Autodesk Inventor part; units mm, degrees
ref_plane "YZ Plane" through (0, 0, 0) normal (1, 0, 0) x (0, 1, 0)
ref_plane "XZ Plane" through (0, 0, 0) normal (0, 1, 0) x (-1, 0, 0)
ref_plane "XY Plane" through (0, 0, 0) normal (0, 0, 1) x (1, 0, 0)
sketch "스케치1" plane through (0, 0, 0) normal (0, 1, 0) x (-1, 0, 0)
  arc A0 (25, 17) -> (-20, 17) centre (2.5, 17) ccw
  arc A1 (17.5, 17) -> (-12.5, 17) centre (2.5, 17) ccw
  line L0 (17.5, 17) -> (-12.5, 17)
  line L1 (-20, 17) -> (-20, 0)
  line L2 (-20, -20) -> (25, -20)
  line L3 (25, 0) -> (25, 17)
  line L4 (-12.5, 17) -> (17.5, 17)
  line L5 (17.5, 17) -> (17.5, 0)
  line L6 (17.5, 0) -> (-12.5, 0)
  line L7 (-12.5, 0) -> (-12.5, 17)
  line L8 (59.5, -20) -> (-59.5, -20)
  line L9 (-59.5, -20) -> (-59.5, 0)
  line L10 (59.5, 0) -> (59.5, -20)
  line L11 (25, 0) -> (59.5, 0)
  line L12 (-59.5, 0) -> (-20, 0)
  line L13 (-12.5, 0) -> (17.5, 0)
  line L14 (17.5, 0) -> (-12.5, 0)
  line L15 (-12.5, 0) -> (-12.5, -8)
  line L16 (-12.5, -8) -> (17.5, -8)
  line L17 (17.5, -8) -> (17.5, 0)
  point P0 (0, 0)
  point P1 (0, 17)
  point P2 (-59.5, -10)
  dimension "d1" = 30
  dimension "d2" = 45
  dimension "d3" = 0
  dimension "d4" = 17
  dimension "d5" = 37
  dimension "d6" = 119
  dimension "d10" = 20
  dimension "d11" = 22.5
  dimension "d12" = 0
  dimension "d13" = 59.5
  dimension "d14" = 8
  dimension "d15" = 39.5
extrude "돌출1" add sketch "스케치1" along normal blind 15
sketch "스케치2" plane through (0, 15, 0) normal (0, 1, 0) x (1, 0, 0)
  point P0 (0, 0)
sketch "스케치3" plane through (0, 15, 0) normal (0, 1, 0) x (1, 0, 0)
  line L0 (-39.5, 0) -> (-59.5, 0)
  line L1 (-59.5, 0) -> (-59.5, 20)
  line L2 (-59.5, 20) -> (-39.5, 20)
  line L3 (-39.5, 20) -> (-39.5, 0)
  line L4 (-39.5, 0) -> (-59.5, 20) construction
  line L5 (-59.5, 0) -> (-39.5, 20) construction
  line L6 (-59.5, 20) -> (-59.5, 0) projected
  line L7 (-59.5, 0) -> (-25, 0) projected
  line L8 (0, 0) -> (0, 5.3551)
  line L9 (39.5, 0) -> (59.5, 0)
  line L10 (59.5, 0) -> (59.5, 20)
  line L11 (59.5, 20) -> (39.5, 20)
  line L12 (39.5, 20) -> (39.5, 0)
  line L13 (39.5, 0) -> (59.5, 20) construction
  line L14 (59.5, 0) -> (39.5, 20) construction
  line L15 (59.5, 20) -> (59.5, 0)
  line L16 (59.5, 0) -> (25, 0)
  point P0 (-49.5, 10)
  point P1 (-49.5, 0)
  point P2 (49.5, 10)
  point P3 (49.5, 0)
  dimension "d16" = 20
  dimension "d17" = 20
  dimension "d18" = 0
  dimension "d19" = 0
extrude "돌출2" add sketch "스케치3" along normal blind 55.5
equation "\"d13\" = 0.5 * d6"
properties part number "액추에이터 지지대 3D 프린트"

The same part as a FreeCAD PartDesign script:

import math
import FreeCAD as App
import Part
import Sketcher
from FreeCAD import Vector


def add_polygon(sketch, points):
    """Adds a closed chain of lines whose ends are joined by coincident constraints."""
    first, n = sketch.GeometryCount, len(points)
    for a, b in zip(points, points[1:] + points[:1]):
        sketch.addGeometry(Part.LineSegment(App.Vector(*a, 0), App.Vector(*b, 0)), False)
    for i in range(n):
        sketch.addConstraint(Sketcher.Constraint("Coincident", first + i, 2, first + (i + 1) % n, 1))

doc = App.newDocument("Part")
body = doc.addObject("PartDesign::Body", "Body")

# Sketch on XZ plane
sketch1 = doc.addObject("Sketcher::SketchObject", "Sketch")
body.addObject(sketch1)
sketch1.AttachmentSupport = (doc.XZ_Plane, [""])
sketch1.MapMode = "FlatFace"
sketch1.addGeometry([
    Part.LineSegment(Vector(-25, 0, 0), Vector(-25, 17, 0)),  # 0
    Part.ArcOfCircle(Part.Circle(Vector(-2.5, 17, 0), Vector(0, 0, 1), 22.5), math.radians(0), math.radians(180)),  # 1
    Part.LineSegment(Vector(20, 17, 0), Vector(20, 0, 0)),  # 2
    Part.LineSegment(Vector(20, 0, 0), Vector(59.5, 0, 0)),  # 3
    Part.LineSegment(Vector(59.5, 0, 0), Vector(59.5, -20, 0)),  # 4
    Part.LineSegment(Vector(59.5, -20, 0), Vector(-59.5, -20, 0)),  # 5
    Part.LineSegment(Vector(-59.5, -20, 0), Vector(-59.5, 0, 0)),  # 6
    Part.LineSegment(Vector(-59.5, 0, 0), Vector(-25, 0, 0)),  # 7
    Part.ArcOfCircle(Part.Circle(Vector(-2.5, 17, 0), Vector(0, 0, 1), 15), math.radians(0), math.radians(180)),  # 8
    Part.LineSegment(Vector(-17.5, 17, 0), Vector(-17.5, -8, 0)),  # 9
    Part.LineSegment(Vector(-17.5, -8, 0), Vector(12.5, -8, 0)),  # 10
    Part.LineSegment(Vector(12.5, -8, 0), Vector(12.5, 17, 0)),  # 11
], False)
sketch1.addConstraint([
    Sketcher.Constraint("Tangent", 0, 2, 1, 2),
    Sketcher.Constraint("Tangent", 1, 1, 2, 1),
    Sketcher.Constraint("Coincident", 2, 2, 3, 1),
    Sketcher.Constraint("Coincident", 3, 2, 4, 1),
    Sketcher.Constraint("Coincident", 4, 2, 5, 1),
    Sketcher.Constraint("Coincident", 5, 2, 6, 1),
    Sketcher.Constraint("Coincident", 6, 2, 7, 1),
    Sketcher.Constraint("Coincident", 7, 2, 0, 1),
    Sketcher.Constraint("Tangent", 8, 2, 9, 1),
    Sketcher.Constraint("Coincident", 9, 2, 10, 1),
    Sketcher.Constraint("Coincident", 10, 2, 11, 1),
    Sketcher.Constraint("Tangent", 11, 2, 8, 1),
    Sketcher.Constraint("Vertical", 0),
    Sketcher.Constraint("Vertical", 2),
    Sketcher.Constraint("Horizontal", 3),
    Sketcher.Constraint("Vertical", 4),
    Sketcher.Constraint("Horizontal", 5),
    Sketcher.Constraint("Vertical", 6),
    Sketcher.Constraint("Horizontal", 7),
    Sketcher.Constraint("Vertical", 9),
    Sketcher.Constraint("Horizontal", 10),
    Sketcher.Constraint("Vertical", 11),
    Sketcher.Constraint("Coincident", 8, 3, 1, 3),
    Sketcher.Constraint("Symmetric", 3, 2, 6, 2, -1, 1),
    Sketcher.Constraint("PointOnObject", 2, 2, -1),
    Sketcher.Constraint("Radius", 8, 15.0),
    Sketcher.Constraint("Radius", 1, 22.5),
    Sketcher.Constraint("DistanceX", 5, 2, 5, 1, 119.0),
    Sketcher.Constraint("DistanceY", 0, 1, 0, 2, 17.0),
    Sketcher.Constraint("DistanceY", 4, 2, 4, 1, 20.0),
    Sketcher.Constraint("DistanceX", 3, 1, 3, 2, 39.5),
    Sketcher.Constraint("DistanceY", 9, 2, -1, 1, 8.0),
])
pad1 = doc.addObject("PartDesign::Pad", "Pad")
body.addObject(pad1)
pad1.Profile = sketch1
pad1.Length = 15
pad1.Reversed = True

# Sketch on XZ plane
sketch2 = doc.addObject("Sketcher::SketchObject", "Sketch001")
body.addObject(sketch2)
sketch2.AttachmentSupport = (doc.XZ_Plane, [""])
sketch2.MapMode = "FlatFace"
sketch2.AttachmentOffset = App.Placement(Vector(0, 0, -15), App.Rotation())
add_polygon(sketch2, [(-59.5, 0), (-39.5, 0), (-39.5, -20), (-59.5, -20)])  # lines 0-3
add_polygon(sketch2, [(39.5, -20), (39.5, 0), (59.5, 0), (59.5, -20)])  # lines 4-7
sketch2.addConstraint([
    Sketcher.Constraint("Horizontal", 0),
    Sketcher.Constraint("Vertical", 1),
    Sketcher.Constraint("Horizontal", 2),
    Sketcher.Constraint("Vertical", 3),
    Sketcher.Constraint("Vertical", 4),
    Sketcher.Constraint("Horizontal", 5),
    Sketcher.Constraint("Vertical", 6),
    Sketcher.Constraint("Horizontal", 7),
    Sketcher.Constraint("Symmetric", 0, 2, 4, 2, -1, 1),
    Sketcher.Constraint("Symmetric", 3, 2, 5, 2, -2),
    Sketcher.Constraint("Horizontal", 2, 2, 6, 2),
    Sketcher.Constraint("Equal", 7, 1),
    Sketcher.Constraint("DistanceX", 0, 1, 0, 2, 20.0),
    Sketcher.Constraint("DistanceX", 0, 2, 4, 2, 79.0),
])
pad2 = doc.addObject("PartDesign::Pad", "Pad001")
body.addObject(pad2)
pad2.Profile = sketch2
pad2.Length = 55.5
pad2.Reversed = True

doc.recompute()
